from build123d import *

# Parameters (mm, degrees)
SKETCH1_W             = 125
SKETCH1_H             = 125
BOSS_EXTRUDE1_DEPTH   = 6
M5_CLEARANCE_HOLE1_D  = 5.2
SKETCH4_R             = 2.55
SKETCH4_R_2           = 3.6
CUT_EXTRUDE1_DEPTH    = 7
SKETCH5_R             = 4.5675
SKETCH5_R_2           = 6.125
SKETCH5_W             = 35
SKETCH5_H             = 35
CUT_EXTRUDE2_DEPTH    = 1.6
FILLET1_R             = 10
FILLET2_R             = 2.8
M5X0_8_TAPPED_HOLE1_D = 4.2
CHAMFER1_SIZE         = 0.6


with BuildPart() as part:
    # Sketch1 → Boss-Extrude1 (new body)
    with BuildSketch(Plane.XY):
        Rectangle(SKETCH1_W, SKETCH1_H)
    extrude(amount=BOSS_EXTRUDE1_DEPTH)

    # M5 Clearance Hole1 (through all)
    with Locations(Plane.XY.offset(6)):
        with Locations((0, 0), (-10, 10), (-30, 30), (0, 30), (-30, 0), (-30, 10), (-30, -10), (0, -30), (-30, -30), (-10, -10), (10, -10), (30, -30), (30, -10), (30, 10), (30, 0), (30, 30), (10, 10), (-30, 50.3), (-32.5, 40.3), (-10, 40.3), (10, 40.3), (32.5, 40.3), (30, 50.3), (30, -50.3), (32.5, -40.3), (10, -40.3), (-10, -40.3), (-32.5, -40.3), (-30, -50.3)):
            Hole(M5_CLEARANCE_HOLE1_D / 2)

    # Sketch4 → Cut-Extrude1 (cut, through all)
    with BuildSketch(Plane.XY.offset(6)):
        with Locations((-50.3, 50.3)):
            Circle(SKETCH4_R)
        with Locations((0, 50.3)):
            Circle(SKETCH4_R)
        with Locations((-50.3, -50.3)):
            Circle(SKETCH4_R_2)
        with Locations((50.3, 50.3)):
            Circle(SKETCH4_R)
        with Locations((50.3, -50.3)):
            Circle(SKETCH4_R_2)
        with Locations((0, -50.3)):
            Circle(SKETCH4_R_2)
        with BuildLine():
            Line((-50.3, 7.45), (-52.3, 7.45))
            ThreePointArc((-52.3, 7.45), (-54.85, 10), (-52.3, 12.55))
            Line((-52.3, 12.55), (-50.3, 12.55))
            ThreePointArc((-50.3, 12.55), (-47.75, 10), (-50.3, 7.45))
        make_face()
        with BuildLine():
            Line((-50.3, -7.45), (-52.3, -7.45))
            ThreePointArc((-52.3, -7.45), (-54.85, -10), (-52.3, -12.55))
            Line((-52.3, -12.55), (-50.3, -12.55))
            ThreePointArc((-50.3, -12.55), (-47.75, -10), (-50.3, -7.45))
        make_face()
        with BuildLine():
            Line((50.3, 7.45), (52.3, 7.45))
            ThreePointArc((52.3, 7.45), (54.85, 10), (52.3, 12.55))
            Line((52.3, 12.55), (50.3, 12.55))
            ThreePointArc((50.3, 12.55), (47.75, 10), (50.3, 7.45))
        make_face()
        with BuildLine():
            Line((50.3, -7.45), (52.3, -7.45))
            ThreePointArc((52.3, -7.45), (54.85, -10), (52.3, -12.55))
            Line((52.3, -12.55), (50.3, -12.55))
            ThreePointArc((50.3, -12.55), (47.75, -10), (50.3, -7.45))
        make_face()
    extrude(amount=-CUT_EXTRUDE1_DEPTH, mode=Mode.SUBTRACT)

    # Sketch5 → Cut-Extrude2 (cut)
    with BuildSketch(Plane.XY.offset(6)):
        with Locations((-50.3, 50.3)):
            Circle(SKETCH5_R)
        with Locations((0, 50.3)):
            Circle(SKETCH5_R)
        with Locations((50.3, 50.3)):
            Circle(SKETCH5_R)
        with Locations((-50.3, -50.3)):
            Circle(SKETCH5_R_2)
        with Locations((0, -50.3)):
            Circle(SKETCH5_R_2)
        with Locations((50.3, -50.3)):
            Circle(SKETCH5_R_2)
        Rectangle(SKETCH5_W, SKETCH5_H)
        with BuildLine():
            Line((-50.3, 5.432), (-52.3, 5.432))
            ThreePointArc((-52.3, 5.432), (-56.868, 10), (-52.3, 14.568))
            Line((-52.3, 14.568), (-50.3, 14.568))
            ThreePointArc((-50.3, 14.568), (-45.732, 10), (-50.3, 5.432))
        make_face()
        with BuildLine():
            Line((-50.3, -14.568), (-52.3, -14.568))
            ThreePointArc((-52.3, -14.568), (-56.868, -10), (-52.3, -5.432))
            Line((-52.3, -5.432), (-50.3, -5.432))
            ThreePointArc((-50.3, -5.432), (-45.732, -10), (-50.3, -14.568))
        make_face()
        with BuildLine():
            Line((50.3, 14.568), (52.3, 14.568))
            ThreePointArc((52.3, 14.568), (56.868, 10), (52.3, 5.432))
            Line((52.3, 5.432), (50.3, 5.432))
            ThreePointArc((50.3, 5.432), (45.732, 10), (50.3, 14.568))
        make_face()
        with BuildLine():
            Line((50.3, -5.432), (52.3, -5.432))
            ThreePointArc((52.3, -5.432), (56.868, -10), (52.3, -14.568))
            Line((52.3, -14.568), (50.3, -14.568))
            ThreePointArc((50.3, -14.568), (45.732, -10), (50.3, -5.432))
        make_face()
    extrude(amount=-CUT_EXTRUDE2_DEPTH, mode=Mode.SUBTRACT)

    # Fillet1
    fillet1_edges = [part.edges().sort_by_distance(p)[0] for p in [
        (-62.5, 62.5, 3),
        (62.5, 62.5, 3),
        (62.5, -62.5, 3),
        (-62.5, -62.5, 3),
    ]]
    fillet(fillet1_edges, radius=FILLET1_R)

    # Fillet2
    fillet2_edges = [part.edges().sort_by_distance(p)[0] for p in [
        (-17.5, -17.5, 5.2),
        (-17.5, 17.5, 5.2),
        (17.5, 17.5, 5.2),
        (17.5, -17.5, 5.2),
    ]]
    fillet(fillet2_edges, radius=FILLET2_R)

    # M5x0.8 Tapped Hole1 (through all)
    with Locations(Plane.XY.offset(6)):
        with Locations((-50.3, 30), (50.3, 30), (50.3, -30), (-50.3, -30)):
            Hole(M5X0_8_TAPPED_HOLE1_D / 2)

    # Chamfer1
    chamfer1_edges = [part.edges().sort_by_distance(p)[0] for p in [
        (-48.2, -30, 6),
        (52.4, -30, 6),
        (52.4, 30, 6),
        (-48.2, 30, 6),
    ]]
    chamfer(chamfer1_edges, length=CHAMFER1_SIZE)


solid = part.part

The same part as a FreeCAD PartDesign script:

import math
import FreeCAD as App
import Part
import Sketcher

V = App.Vector
Q = App.Units.Quantity


def edges_at(feature, points):
    """Names of the edges that pass closest to the given points."""
    edges = feature.Shape.Edges
    near = lambda p: min(range(len(edges)), key=lambda i: edges[i].distToShape(Part.Vertex(*p))[0])
    return sorted({f"Edge{near(p) + 1}" for p in points})


def add_polygon(sketch, points):
    """Adds a closed chain of lines whose ends are joined by coincident constraints."""
    first, n = sketch.GeometryCount, len(points)
    for a, b in zip(points, points[1:] + points[:1]):
        sketch.addGeometry(Part.LineSegment(App.Vector(*a, 0), App.Vector(*b, 0)), False)
    for i in range(n):
        sketch.addConstraint(Sketcher.Constraint("Coincident", first + i, 2, first + (i + 1) % n, 1))

doc = App.newDocument("Part")
params = doc.addObject("Spreadsheet::Sheet", "Params")
for row, (alias, value) in enumerate([
    ("sketch1_width", "125 mm"),
    ("pad1_length", "6 mm"),
    ("sketch2_diameter", "5.2 mm"),
    ("hole_diameter", "5.2 mm"),
    ("sketch3_diameter", "5.1 mm"),
    ("sketch3_diameter2", "7.2 mm"),
    ("sketch3_width", "2 mm"),
    ("sketch4_diameter", "12.25 mm"),
    ("sketch4_width", "35 mm"),
    ("sketch4_width2", "2 mm"),
    ("pocket2_length", "1.6 mm"),
    ("fillet_radius", "10 mm"),
    ("fillet2_radius", "2.8 mm"),
    ("sketch5_diameter", "4.2 mm"),
    ("hole2_diameter", "4.2 mm"),
    ("chamfer_size", "0.6 mm"),
], start=1):
    params.set(f"A{row}", alias)
    params.set(f"B{row}", "=" + value)
    params.setAlias(f"B{row}", alias)

body = doc.addObject("PartDesign::Body", "Body")

# Sketch on XY plane
sketch1 = body.newObject("Sketcher::SketchObject", "Sketch")
sketch1.AttachmentSupport = (doc.getObject("XY_Plane"), [""])
sketch1.MapMode = "FlatFace"
add_polygon(sketch1, [(-62, 62), (-62, -62), (62, -62), (62, 62)])  # lines 0-3
sketch1.addConstraint(Sketcher.Constraint("Vertical", 0))
sketch1.addConstraint(Sketcher.Constraint("Horizontal", 1))
sketch1.addConstraint(Sketcher.Constraint("Vertical", 2))
sketch1.addConstraint(Sketcher.Constraint("Horizontal", 3))
sketch1.addConstraint(Sketcher.Constraint("Symmetric", 0, 2, 2, 2, -1, 1))
sketch1.addConstraint(Sketcher.Constraint("Equal", 3, 0))
sketch1.addConstraint(Sketcher.Constraint("DistanceX", 1, 1, 1, 2, Q("125 mm")))
sketch1.setExpression("Constraints[10]", "Params.sketch1_width")
pad1 = body.newObject("PartDesign::Pad", "Pad")
pad1.Profile = sketch1
pad1.setExpression("Length", "Params.pad1_length")

# Sketch on XY plane
sketch2 = body.newObject("Sketcher::SketchObject", "Sketch001")
sketch2.AttachmentSupport = (doc.getObject("XY_Plane"), [""])
sketch2.MapMode = "FlatFace"
sketch2.AttachmentOffset = App.Placement(V(0, 0, 6), App.Rotation())
sketch2.addGeometry(Part.Circle(V(0, 0, 0), V(0, 0, 1), 2.6), False)
sketch2.addGeometry(Part.Circle(V(-10, 10, 0), V(0, 0, 1), 2.6), False)
sketch2.addGeometry(Part.Circle(V(-30, 30, 0), V(0, 0, 1), 2.6), False)
sketch2.addGeometry(Part.Circle(V(0, 30, 0), V(0, 0, 1), 2.6), False)
sketch2.addGeometry(Part.Circle(V(-30, 0, 0), V(0, 0, 1), 2.6), False)
sketch2.addGeometry(Part.Circle(V(-30, 10, 0), V(0, 0, 1), 2.6), False)
sketch2.addGeometry(Part.Circle(V(-30, -10, 0), V(0, 0, 1), 2.6), False)
sketch2.addGeometry(Part.Circle(V(0, -30, 0), V(0, 0, 1), 2.6), False)
sketch2.addGeometry(Part.Circle(V(-30, -30, 0), V(0, 0, 1), 2.6), False)
sketch2.addGeometry(Part.Circle(V(-10, -10, 0), V(0, 0, 1), 2.6), False)
sketch2.addGeometry(Part.Circle(V(10, -10, 0), V(0, 0, 1), 2.6), False)
sketch2.addGeometry(Part.Circle(V(30, -30, 0), V(0, 0, 1), 2.6), False)
sketch2.addGeometry(Part.Circle(V(30, -10, 0), V(0, 0, 1), 2.6), False)
sketch2.addGeometry(Part.Circle(V(30, 10, 0), V(0, 0, 1), 2.6), False)
sketch2.addGeometry(Part.Circle(V(30, 0, 0), V(0, 0, 1), 2.6), False)
sketch2.addGeometry(Part.Circle(V(30, 30, 0), V(0, 0, 1), 2.6), False)
sketch2.addGeometry(Part.Circle(V(10, 10, 0), V(0, 0, 1), 2.6), False)
sketch2.addGeometry(Part.Circle(V(-30, 50.3, 0), V(0, 0, 1), 2.6), False)
sketch2.addGeometry(Part.Circle(V(-32.5, 40.3, 0), V(0, 0, 1), 2.6), False)
sketch2.addGeometry(Part.Circle(V(-10, 40.3, 0), V(0, 0, 1), 2.6), False)
sketch2.addGeometry(Part.Circle(V(10, 40.3, 0), V(0, 0, 1), 2.6), False)
sketch2.addGeometry(Part.Circle(V(32.5, 40.3, 0), V(0, 0, 1), 2.6), False)
sketch2.addGeometry(Part.Circle(V(30, 50.3, 0), V(0, 0, 1), 2.6), False)
sketch2.addGeometry(Part.Circle(V(30, -50.3, 0), V(0, 0, 1), 2.6), False)
sketch2.addGeometry(Part.Circle(V(32.5, -40.3, 0), V(0, 0, 1), 2.6), False)
sketch2.addGeometry(Part.Circle(V(10, -40.3, 0), V(0, 0, 1), 2.6), False)
sketch2.addGeometry(Part.Circle(V(-10, -40.3, 0), V(0, 0, 1), 2.6), False)
sketch2.addGeometry(Part.Circle(V(-32.5, -40.3, 0), V(0, 0, 1), 2.6), False)
sketch2.addGeometry(Part.Circle(V(-30, -50.3, 0), V(0, 0, 1), 2.6), False)
sketch2.addConstraint(Sketcher.Constraint("Coincident", 0, 3, -1, 1))
sketch2.addConstraint(Sketcher.Constraint("Equal", 0, 1))
sketch2.addConstraint(Sketcher.Constraint("Equal", 1, 2))
sketch2.addConstraint(Sketcher.Constraint("Equal", 2, 3))
sketch2.addConstraint(Sketcher.Constraint("Equal", 3, 4))
sketch2.addConstraint(Sketcher.Constraint("Equal", 4, 5))
sketch2.addConstraint(Sketcher.Constraint("Equal", 5, 6))
sketch2.addConstraint(Sketcher.Constraint("Equal", 6, 7))
sketch2.addConstraint(Sketcher.Constraint("Equal", 7, 8))
sketch2.addConstraint(Sketcher.Constraint("Equal", 8, 9))
sketch2.addConstraint(Sketcher.Constraint("Equal", 9, 10))
sketch2.addConstraint(Sketcher.Constraint("Equal", 10, 11))
sketch2.addConstraint(Sketcher.Constraint("Equal", 11, 12))
sketch2.addConstraint(Sketcher.Constraint("Equal", 12, 13))
sketch2.addConstraint(Sketcher.Constraint("Equal", 13, 14))
sketch2.addConstraint(Sketcher.Constraint("Equal", 14, 15))
sketch2.addConstraint(Sketcher.Constraint("Equal", 15, 16))
sketch2.addConstraint(Sketcher.Constraint("Equal", 16, 17))
sketch2.addConstraint(Sketcher.Constraint("Equal", 17, 18))
sketch2.addConstraint(Sketcher.Constraint("Equal", 18, 19))
sketch2.addConstraint(Sketcher.Constraint("Equal", 19, 20))
sketch2.addConstraint(Sketcher.Constraint("Equal", 20, 21))
sketch2.addConstraint(Sketcher.Constraint("Equal", 21, 22))
sketch2.addConstraint(Sketcher.Constraint("Equal", 22, 23))
sketch2.addConstraint(Sketcher.Constraint("Equal", 23, 24))
sketch2.addConstraint(Sketcher.Constraint("Equal", 24, 25))
sketch2.addConstraint(Sketcher.Constraint("Equal", 25, 26))
sketch2.addConstraint(Sketcher.Constraint("Equal", 26, 27))
sketch2.addConstraint(Sketcher.Constraint("Equal", 27, 28))
sketch2.addConstraint(Sketcher.Constraint("Symmetric", 3, 3, 7, 3, -1, 1))
sketch2.addConstraint(Sketcher.Constraint("Symmetric", 1, 3, 10, 3, -1, 1))
sketch2.addConstraint(Sketcher.Constraint("Symmetric", 2, 3, 11, 3, -1, 1))
sketch2.addConstraint(Sketcher.Constraint("Symmetric", 5, 3, 12, 3, -1, 1))
sketch2.addConstraint(Sketcher.Constraint("Symmetric", 6, 3, 13, 3, -1, 1))
sketch2.addConstraint(Sketcher.Constraint("Symmetric", 4, 3, 14, 3, -1, 1))
sketch2.addConstraint(Sketcher.Constraint("Symmetric", 8, 3, 15, 3, -1, 1))
sketch2.addConstraint(Sketcher.Constraint("Symmetric", 9, 3, 16, 3, -1, 1))
sketch2.addConstraint(Sketcher.Constraint("Symmetric", 17, 3, 23, 3, -1, 1))
sketch2.addConstraint(Sketcher.Constraint("Symmetric", 18, 3, 24, 3, -1, 1))
sketch2.addConstraint(Sketcher.Constraint("Symmetric", 19, 3, 25, 3, -1, 1))
sketch2.addConstraint(Sketcher.Constraint("Symmetric", 20, 3, 26, 3, -1, 1))
sketch2.addConstraint(Sketcher.Constraint("Symmetric", 21, 3, 27, 3, -1, 1))
sketch2.addConstraint(Sketcher.Constraint("Symmetric", 22, 3, 28, 3, -1, 1))
sketch2.addConstraint(Sketcher.Constraint("Symmetric", 9, 3, 10, 3, -2))
sketch2.addConstraint(Sketcher.Constraint("Symmetric", 8, 3, 11, 3, -2))
sketch2.addConstraint(Sketcher.Constraint("Symmetric", 6, 3, 12, 3, -2))
sketch2.addConstraint(Sketcher.Constraint("Symmetric", 19, 3, 20, 3, -2))
sketch2.addConstraint(Sketcher.Constraint("Symmetric", 18, 3, 21, 3, -2))
sketch2.addConstraint(Sketcher.Constraint("Symmetric", 17, 3, 22, 3, -2))
sketch2.addConstraint(Sketcher.Constraint("PointOnObject", 3, 3, -2))
sketch2.addConstraint(Sketcher.Constraint("PointOnObject", 4, 3, -1))
sketch2.addConstraint(Sketcher.Constraint("Horizontal", 2, 3, 3, 3))
sketch2.addConstraint(Sketcher.Constraint("Horizontal", 1, 3, 5, 3))
sketch2.addConstraint(Sketcher.Constraint("Horizontal", 18, 3, 19, 3))
sketch2.addConstraint(Sketcher.Constraint("Vertical", 2, 3, 4, 3))
sketch2.addConstraint(Sketcher.Constraint("Vertical", 4, 3, 5, 3))
sketch2.addConstraint(Sketcher.Constraint("Vertical", 8, 3, 17, 3))
sketch2.addConstraint(Sketcher.Constraint("Vertical", 9, 3, 19, 3))
sketch2.addConstraint(Sketcher.Constraint("Diameter", 0, Q("5.2 mm")))
sketch2.addConstraint(Sketcher.Constraint("DistanceX", 1, 3, -1, 1, Q("10 mm")))
sketch2.addConstraint(Sketcher.Constraint("DistanceY", -1, 1, 1, 3, Q("10 mm")))
sketch2.addConstraint(Sketcher.Constraint("DistanceX", 2, 3, -1, 1, Q("30 mm")))
sketch2.addConstraint(Sketcher.Constraint("DistanceY", -1, 1, 2, 3, Q("30 mm")))
sketch2.addConstraint(Sketcher.Constraint("DistanceY", 18, 3, 17, 3, Q("10 mm")))
sketch2.addConstraint(Sketcher.Constraint("DistanceY", -1, 1, 17, 3, Q("50.3 mm")))
sketch2.addConstraint(Sketcher.Constraint("DistanceX", 18, 3, -1, 1, Q("32.5 mm")))
sketch2.setExpression("Constraints[58]", "Params.sketch2_diameter")
doc.recompute()
hole = body.newObject("PartDesign::Hole", "Hole")
hole.Profile = sketch2
hole.ThreadType = "None"
hole.setExpression("Diameter", "Params.hole_diameter")
hole.DepthType = "ThroughAll"

# Sketch on XY plane
sketch3 = body.newObject("Sketcher::SketchObject", "Sketch002")
sketch3.AttachmentSupport = (doc.getObject("XY_Plane"), [""])
sketch3.MapMode = "FlatFace"
sketch3.AttachmentOffset = App.Placement(V(0, 0, 6), App.Rotation())
sketch3.addGeometry(Part.Circle(V(-50.3, 50.3, 0), V(0, 0, 1), 2.5), False)
sketch3.addGeometry(Part.Circle(V(0, 50.3, 0), V(0, 0, 1), 2.5), False)
sketch3.addGeometry(Part.Circle(V(-50.3, -50.3, 0), V(0, 0, 1), 3.6), False)
sketch3.addGeometry(Part.Circle(V(50.3, 50.3, 0), V(0, 0, 1), 2.5), False)
sketch3.addGeometry(Part.Circle(V(50.3, -50.3, 0), V(0, 0, 1), 3.6), False)
sketch3.addGeometry(Part.Circle(V(0, -50.3, 0), V(0, 0, 1), 3.6), False)
sketch3.addGeometry(Part.LineSegment(V(-52.3, 7.5, 0), V(-50.3, 7.5, 0)), False)
sketch3.addGeometry(Part.ArcOfCircle(Part.Circle(V(-50.3, 10, 0), V(0, 0, 1), 2.5), math.radians(-90), math.radians(90)), False)
sketch3.addGeometry(Part.LineSegment(V(-50.3, 12.6, 0), V(-52.3, 12.6, 0)), False)
sketch3.addGeometry(Part.ArcOfCircle(Part.Circle(V(-52.3, 10, 0), V(0, 0, 1), 2.5), math.radians(90), math.radians(270)), False)
sketch3.addGeometry(Part.LineSegment(V(-50.3, -7.5, 0), V(-52.3, -7.5, 0)), False)
sketch3.addGeometry(Part.ArcOfCircle(Part.Circle(V(-52.3, -10, 0), V(0, 0, 1), 2.5), math.radians(90), math.radians(270)), False)
sketch3.addGeometry(Part.LineSegment(V(-52.3, -12.6, 0), V(-50.3, -12.6, 0)), False)
sketch3.addGeometry(Part.ArcOfCircle(Part.Circle(V(-50.3, -10, 0), V(0, 0, 1), 2.5), math.radians(-90), math.radians(90)), False)
sketch3.addGeometry(Part.LineSegment(V(50.3, 7.5, 0), V(52.3, 7.5, 0)), False)
sketch3.addGeometry(Part.ArcOfCircle(Part.Circle(V(52.3, 10, 0), V(0, 0, 1), 2.5), math.radians(-90), math.radians(90)), False)
sketch3.addGeometry(Part.LineSegment(V(52.3, 12.6, 0), V(50.3, 12.6, 0)), False)
sketch3.addGeometry(Part.ArcOfCircle(Part.Circle(V(50.3, 10, 0), V(0, 0, 1), 2.5), math.radians(90), math.radians(270)), False)
sketch3.addGeometry(Part.LineSegment(V(52.3, -7.5, 0), V(50.3, -7.5, 0)), False)
sketch3.addGeometry(Part.ArcOfCircle(Part.Circle(V(50.3, -10, 0), V(0, 0, 1), 2.5), math.radians(90), math.radians(270)), False)
sketch3.addGeometry(Part.LineSegment(V(50.3, -12.6, 0), V(52.3, -12.6, 0)), False)
sketch3.addGeometry(Part.ArcOfCircle(Part.Circle(V(52.3, -10, 0), V(0, 0, 1), 2.5), math.radians(-90), math.radians(90)), False)
sketch3.addConstraint(Sketcher.Constraint("Tangent", 6, 2, 7, 1))
sketch3.addConstraint(Sketcher.Constraint("Tangent", 7, 2, 8, 1))
sketch3.addConstraint(Sketcher.Constraint("Tangent", 8, 2, 9, 1))
sketch3.addConstraint(Sketcher.Constraint("Tangent", 9, 2, 6, 1))
sketch3.addConstraint(Sketcher.Constraint("Tangent", 10, 2, 11, 1))
sketch3.addConstraint(Sketcher.Constraint("Tangent", 11, 2, 12, 1))
sketch3.addConstraint(Sketcher.Constraint("Tangent", 12, 2, 13, 1))
sketch3.addConstraint(Sketcher.Constraint("Tangent", 13, 2, 10, 1))
sketch3.addConstraint(Sketcher.Constraint("Tangent", 14, 2, 15, 1))
sketch3.addConstraint(Sketcher.Constraint("Tangent", 15, 2, 16, 1))
sketch3.addConstraint(Sketcher.Constraint("Tangent", 16, 2, 17, 1))
sketch3.addConstraint(Sketcher.Constraint("Tangent", 17, 2, 14, 1))
sketch3.addConstraint(Sketcher.Constraint("Tangent", 18, 2, 19, 1))
sketch3.addConstraint(Sketcher.Constraint("Tangent", 19, 2, 20, 1))
sketch3.addConstraint(Sketcher.Constraint("Tangent", 20, 2, 21, 1))
sketch3.addConstraint(Sketcher.Constraint("Tangent", 21, 2, 18, 1))
sketch3.addConstraint(Sketcher.Constraint("Horizontal", 6))
sketch3.addConstraint(Sketcher.Constraint("Horizontal", 8))
sketch3.addConstraint(Sketcher.Constraint("Horizontal", 10))
sketch3.addConstraint(Sketcher.Constraint("Horizontal", 12))
sketch3.addConstraint(Sketcher.Constraint("Horizontal", 14))
sketch3.addConstraint(Sketcher.Constraint("Horizontal", 16))
sketch3.addConstraint(Sketcher.Constraint("Horizontal", 18))
sketch3.addConstraint(Sketcher.Constraint("Horizontal", 20))
sketch3.addConstraint(Sketcher.Constraint("Equal", 0, 1))
sketch3.addConstraint(Sketcher.Constraint("Equal", 1, 3))
sketch3.addConstraint(Sketcher.Constraint("Equal", 2, 4))
sketch3.addConstraint(Sketcher.Constraint("Equal", 4, 5))
sketch3.addConstraint(Sketcher.Constraint("Equal", 3, 7))
sketch3.addConstraint(Sketcher.Constraint("Equal", 9, 11))
sketch3.addConstraint(Sketcher.Constraint("Equal", 13, 15))
sketch3.addConstraint(Sketcher.Constraint("Equal", 17, 19))
sketch3.addConstraint(Sketcher.Constraint("Symmetric", 2, 3, 3, 3, -1, 1))
sketch3.addConstraint(Sketcher.Constraint("Symmetric", 0, 3, 4, 3, -1, 1))
sketch3.addConstraint(Sketcher.Constraint("Symmetric", 1, 3, 5, 3, -1, 1))
sketch3.addConstraint(Sketcher.Constraint("Symmetric", 11, 3, 15, 3, -1, 1))
sketch3.addConstraint(Sketcher.Constraint("Symmetric", 7, 3, 19, 3, -1, 1))
sketch3.addConstraint(Sketcher.Constraint("Symmetric", 0, 3, 3, 3, -2))
sketch3.addConstraint(Sketcher.Constraint("Symmetric", 9, 3, 15, 3, -2))
sketch3.addConstraint(Sketcher.Constraint("PointOnObject", 1, 3, -2))
sketch3.addConstraint(Sketcher.Constraint("Horizontal", 0, 3, 1, 3))
sketch3.addConstraint(Sketcher.Constraint("Vertical", 2, 3, 7, 3))
sketch3.addConstraint(Sketcher.Constraint("Vertical", 7, 3, 13, 3))
sketch3.addConstraint(Sketcher.Constraint("Vertical", 4, 3, 17, 3))
sketch3.addConstraint(Sketcher.Constraint("Vertical", 15, 3, 21, 3))
sketch3.addConstraint(Sketcher.Constraint("Diameter", 0, Q("5.1 mm")))
sketch3.addConstraint(Sketcher.Constraint("Diameter", 2, Q("7.2 mm")))
sketch3.addConstraint(Sketcher.Constraint("DistanceX", 6, 1, 6, 2, Q("2 mm")))
sketch3.addConstraint(Sketcher.Constraint("DistanceY", -1, 1, 7, 3, Q("10 mm")))
sketch3.addConstraint(Sketcher.Constraint("DistanceX", 0, 3, -1, 1, Q("50.3 mm")))
sketch3.addConstraint(Sketcher.Constraint("DistanceY", -1, 1, 0, 3, Q("50.3 mm")))
sketch3.setExpression("Constraints[45]", "Params.sketch3_diameter")
sketch3.setExpression("Constraints[46]", "Params.sketch3_diameter2")
sketch3.setExpression("Constraints[47]", "Params.sketch3_width")
pocket1 = body.newObject("PartDesign::Pocket", "Pocket")
pocket1.Profile = sketch3
pocket1.Type = "ThroughAll"

# Sketch on XY plane
sketch4 = body.newObject("Sketcher::SketchObject", "Sketch003")
sketch4.AttachmentSupport = (doc.getObject("XY_Plane"), [""])
sketch4.MapMode = "FlatFace"
sketch4.AttachmentOffset = App.Placement(V(0, 0, 6), App.Rotation())
sketch4.addGeometry(Part.Circle(V(-50.3, 50.3, 0), V(0, 0, 1), 4.6), False)  # 0
sketch4.addGeometry(Part.Circle(V(0, 50.3, 0), V(0, 0, 1), 4.6), False)  # 1
sketch4.addGeometry(Part.Circle(V(50.3, 50.3, 0), V(0, 0, 1), 4.6), False)  # 2
sketch4.addGeometry(Part.Circle(V(-50.3, -50.3, 0), V(0, 0, 1), 6.1), False)  # 3
sketch4.addGeometry(Part.Circle(V(0, -50.3, 0), V(0, 0, 1), 6.1), False)  # 4
sketch4.addGeometry(Part.Circle(V(50.3, -50.3, 0), V(0, 0, 1), 6.1), False)  # 5
add_polygon(sketch4, [(-17.5, 17.5), (-17.5, -17.5), (17.5, -17.5), (17.5, 17.5)])  # lines 6-9
sketch4.addGeometry(Part.LineSegment(V(-52.3, 5.4, 0), V(-50.3, 5.4, 0)), False)  # 10
sketch4.addGeometry(Part.ArcOfCircle(Part.Circle(V(-50.3, 10, 0), V(0, 0, 1), 4.6), math.radians(-90), math.radians(90)), False)  # 11
sketch4.addGeometry(Part.LineSegment(V(-50.3, 14.6, 0), V(-52.3, 14.6, 0)), False)  # 12
sketch4.addGeometry(Part.ArcOfCircle(Part.Circle(V(-52.3, 10, 0), V(0, 0, 1), 4.6), math.radians(90), math.radians(270)), False)  # 13
sketch4.addGeometry(Part.LineSegment(V(-52.3, -14.6, 0), V(-50.3, -14.6, 0)), False)  # 14
sketch4.addGeometry(Part.ArcOfCircle(Part.Circle(V(-50.3, -10, 0), V(0, 0, 1), 4.6), math.radians(-90), math.radians(90)), False)  # 15
sketch4.addGeometry(Part.LineSegment(V(-50.3, -5.4, 0), V(-52.3, -5.4, 0)), False)  # 16
sketch4.addGeometry(Part.ArcOfCircle(Part.Circle(V(-52.3, -10, 0), V(0, 0, 1), 4.6), math.radians(90), math.radians(270)), False)  # 17
sketch4.addGeometry(Part.LineSegment(V(52.3, 14.6, 0), V(50.3, 14.6, 0)), False)  # 18
sketch4.addGeometry(Part.ArcOfCircle(Part.Circle(V(50.3, 10, 0), V(0, 0, 1), 4.6), math.radians(90), math.radians(270)), False)  # 19
sketch4.addGeometry(Part.LineSegment(V(50.3, 5.4, 0), V(52.3, 5.4, 0)), False)  # 20
sketch4.addGeometry(Part.ArcOfCircle(Part.Circle(V(52.3, 10, 0), V(0, 0, 1), 4.6), math.radians(-90), math.radians(90)), False)  # 21
sketch4.addGeometry(Part.LineSegment(V(52.3, -5.4, 0), V(50.3, -5.4, 0)), False)  # 22
sketch4.addGeometry(Part.ArcOfCircle(Part.Circle(V(50.3, -10, 0), V(0, 0, 1), 4.6), math.radians(90), math.radians(270)), False)  # 23
sketch4.addGeometry(Part.LineSegment(V(50.3, -14.6, 0), V(52.3, -14.6, 0)), False)  # 24
sketch4.addGeometry(Part.ArcOfCircle(Part.Circle(V(52.3, -10, 0), V(0, 0, 1), 4.6), math.radians(-90), math.radians(90)), False)  # 25
sketch4.addConstraint(Sketcher.Constraint("Tangent", 10, 2, 11, 1))
sketch4.addConstraint(Sketcher.Constraint("Tangent", 11, 2, 12, 1))
sketch4.addConstraint(Sketcher.Constraint("Tangent", 12, 2, 13, 1))
sketch4.addConstraint(Sketcher.Constraint("Tangent", 13, 2, 10, 1))
sketch4.addConstraint(Sketcher.Constraint("Tangent", 14, 2, 15, 1))
sketch4.addConstraint(Sketcher.Constraint("Tangent", 15, 2, 16, 1))
sketch4.addConstraint(Sketcher.Constraint("Tangent", 16, 2, 17, 1))
sketch4.addConstraint(Sketcher.Constraint("Tangent", 17, 2, 14, 1))
sketch4.addConstraint(Sketcher.Constraint("Tangent", 18, 2, 19, 1))
sketch4.addConstraint(Sketcher.Constraint("Tangent", 19, 2, 20, 1))
sketch4.addConstraint(Sketcher.Constraint("Tangent", 20, 2, 21, 1))
sketch4.addConstraint(Sketcher.Constraint("Tangent", 21, 2, 18, 1))
sketch4.addConstraint(Sketcher.Constraint("Tangent", 22, 2, 23, 1))
sketch4.addConstraint(Sketcher.Constraint("Tangent", 23, 2, 24, 1))
sketch4.addConstraint(Sketcher.Constraint("Tangent", 24, 2, 25, 1))
sketch4.addConstraint(Sketcher.Constraint("Tangent", 25, 2, 22, 1))
sketch4.addConstraint(Sketcher.Constraint("Vertical", 6))
sketch4.addConstraint(Sketcher.Constraint("Horizontal", 7))
sketch4.addConstraint(Sketcher.Constraint("Vertical", 8))
sketch4.addConstraint(Sketcher.Constraint("Horizontal", 9))
sketch4.addConstraint(Sketcher.Constraint("Horizontal", 10))
sketch4.addConstraint(Sketcher.Constraint("Horizontal", 12))
sketch4.addConstraint(Sketcher.Constraint("Horizontal", 14))
sketch4.addConstraint(Sketcher.Constraint("Horizontal", 16))
sketch4.addConstraint(Sketcher.Constraint("Horizontal", 18))
sketch4.addConstraint(Sketcher.Constraint("Horizontal", 20))
sketch4.addConstraint(Sketcher.Constraint("Horizontal", 22))
sketch4.addConstraint(Sketcher.Constraint("Horizontal", 24))
sketch4.addConstraint(Sketcher.Constraint("Equal", 0, 1))
sketch4.addConstraint(Sketcher.Constraint("Equal", 1, 2))
sketch4.addConstraint(Sketcher.Constraint("Equal", 3, 4))
sketch4.addConstraint(Sketcher.Constraint("Equal", 4, 5))
sketch4.addConstraint(Sketcher.Constraint("Equal", 13, 15))
sketch4.addConstraint(Sketcher.Constraint("Equal", 17, 19))
sketch4.addConstraint(Sketcher.Constraint("Equal", 21, 23))
sketch4.addConstraint(Sketcher.Constraint("Symmetric", 2, 3, 3, 3, -1, 1))
sketch4.addConstraint(Sketcher.Constraint("Symmetric", 1, 3, 4, 3, -1, 1))
sketch4.addConstraint(Sketcher.Constraint("Symmetric", 0, 3, 5, 3, -1, 1))
sketch4.addConstraint(Sketcher.Constraint("Symmetric", 15, 3, 19, 3, -1, 1))
sketch4.addConstraint(Sketcher.Constraint("Symmetric", 11, 3, 23, 3, -1, 1))
sketch4.addConstraint(Sketcher.Constraint("Symmetric", 6, 2, 8, 2, -1, 1))
sketch4.addConstraint(Sketcher.Constraint("Symmetric", 0, 3, 2, 3, -2))
sketch4.addConstraint(Sketcher.Constraint("Symmetric", 11, 3, 19, 3, -2))
sketch4.addConstraint(Sketcher.Constraint("PointOnObject", 1, 3, -2))
sketch4.addConstraint(Sketcher.Constraint("Horizontal", 0, 3, 1, 3))
sketch4.addConstraint(Sketcher.Constraint("Vertical", 3, 3, 11, 3))
sketch4.addConstraint(Sketcher.Constraint("Vertical", 13, 3, 17, 3))
sketch4.addConstraint(Sketcher.Constraint("Vertical", 21, 3, 25, 3))
sketch4.addConstraint(Sketcher.Constraint("Equal", 16, 18))
sketch4.addConstraint(Sketcher.Constraint("Equal", 9, 6))
sketch4.addConstraint(Sketcher.Constraint("Diameter", 3, Q("12.25 mm")))
sketch4.addConstraint(Sketcher.Constraint("DistanceX", 7, 1, 7, 2, Q("35 mm")))
sketch4.addConstraint(Sketcher.Constraint("DistanceX", 10, 1, 10, 2, Q("2 mm")))
sketch4.addConstraint(Sketcher.Constraint("Diameter", 0, Q("9.135 mm")))
sketch4.addConstraint(Sketcher.Constraint("DistanceY", -1, 1, 11, 3, Q("10 mm")))
sketch4.addConstraint(Sketcher.Constraint("Radius", 11, Q("4.568 mm")))
sketch4.addConstraint(Sketcher.Constraint("DistanceX", 0, 3, -1, 1, Q("50.3 mm")))
sketch4.addConstraint(Sketcher.Constraint("DistanceY", -1, 1, 0, 3, Q("50.3 mm")))
sketch4.setExpression("Constraints[54]", "Params.sketch4_diameter")
sketch4.setExpression("Constraints[55]", "Params.sketch4_width")
sketch4.setExpression("Constraints[56]", "Params.sketch4_width2")
pocket2 = body.newObject("PartDesign::Pocket", "Pocket001")
pocket2.Profile = sketch4
pocket2.setExpression("Length", "Params.pocket2_length")
doc.recompute()

fillet = body.newObject("PartDesign::Fillet", "Fillet")
fillet.Base = (pocket2, edges_at(pocket2, [
    (-62.5, 62.5, 3),
    (62.5, 62.5, 3),
    (62.5, -62.5, 3),
    (-62.5, -62.5, 3),
]))
fillet.setExpression("Radius", "Params.fillet_radius")
doc.recompute()

fillet2 = body.newObject("PartDesign::Fillet", "Fillet001")
fillet2.Base = (fillet, edges_at(fillet, [
    (-17.5, -17.5, 5.2),
    (-17.5, 17.5, 5.2),
    (17.5, 17.5, 5.2),
    (17.5, -17.5, 5.2),
]))
fillet2.setExpression("Radius", "Params.fillet2_radius")

# Sketch on XY plane
sketch5 = body.newObject("Sketcher::SketchObject", "Sketch004")
sketch5.AttachmentSupport = (doc.getObject("XY_Plane"), [""])
sketch5.MapMode = "FlatFace"
sketch5.AttachmentOffset = App.Placement(V(0, 0, 6), App.Rotation())
sketch5.addGeometry(Part.Circle(V(-50.3, 30, 0), V(0, 0, 1), 2.1), False)
sketch5.addGeometry(Part.Circle(V(50.3, 30, 0), V(0, 0, 1), 2.1), False)
sketch5.addGeometry(Part.Circle(V(50.3, -30, 0), V(0, 0, 1), 2.1), False)
sketch5.addGeometry(Part.Circle(V(-50.3, -30, 0), V(0, 0, 1), 2.1), False)
sketch5.addConstraint(Sketcher.Constraint("Equal", 0, 1))
sketch5.addConstraint(Sketcher.Constraint("Equal", 1, 2))
sketch5.addConstraint(Sketcher.Constraint("Equal", 2, 3))
sketch5.addConstraint(Sketcher.Constraint("Symmetric", 0, 3, 2, 3, -1, 1))
sketch5.addConstraint(Sketcher.Constraint("Symmetric", 1, 3, 3, 3, -1, 1))
sketch5.addConstraint(Sketcher.Constraint("Symmetric", 0, 3, 1, 3, -2))
sketch5.addConstraint(Sketcher.Constraint("Diameter", 0, Q("4.2 mm")))
sketch5.addConstraint(Sketcher.Constraint("DistanceY", -1, 1, 0, 3, Q("30 mm")))
sketch5.addConstraint(Sketcher.Constraint("DistanceX", 0, 3, -1, 1, Q("50.3 mm")))
sketch5.setExpression("Constraints[6]", "Params.sketch5_diameter")
doc.recompute()
hole2 = body.newObject("PartDesign::Hole", "Hole001")
hole2.Profile = sketch5
hole2.ThreadType = "None"
hole2.setExpression("Diameter", "Params.hole2_diameter")
hole2.DepthType = "ThroughAll"
doc.recompute()

chamfer = body.newObject("PartDesign::Chamfer", "Chamfer")
chamfer.Base = (hole2, edges_at(hole2, [
    (-48.2, -30, 6),
    (52.4, -30, 6),
    (52.4, 30, 6),
    (-48.2, 30, 6),
]))
chamfer.setExpression("Size", "Params.chamfer_size")

doc.recompute()
